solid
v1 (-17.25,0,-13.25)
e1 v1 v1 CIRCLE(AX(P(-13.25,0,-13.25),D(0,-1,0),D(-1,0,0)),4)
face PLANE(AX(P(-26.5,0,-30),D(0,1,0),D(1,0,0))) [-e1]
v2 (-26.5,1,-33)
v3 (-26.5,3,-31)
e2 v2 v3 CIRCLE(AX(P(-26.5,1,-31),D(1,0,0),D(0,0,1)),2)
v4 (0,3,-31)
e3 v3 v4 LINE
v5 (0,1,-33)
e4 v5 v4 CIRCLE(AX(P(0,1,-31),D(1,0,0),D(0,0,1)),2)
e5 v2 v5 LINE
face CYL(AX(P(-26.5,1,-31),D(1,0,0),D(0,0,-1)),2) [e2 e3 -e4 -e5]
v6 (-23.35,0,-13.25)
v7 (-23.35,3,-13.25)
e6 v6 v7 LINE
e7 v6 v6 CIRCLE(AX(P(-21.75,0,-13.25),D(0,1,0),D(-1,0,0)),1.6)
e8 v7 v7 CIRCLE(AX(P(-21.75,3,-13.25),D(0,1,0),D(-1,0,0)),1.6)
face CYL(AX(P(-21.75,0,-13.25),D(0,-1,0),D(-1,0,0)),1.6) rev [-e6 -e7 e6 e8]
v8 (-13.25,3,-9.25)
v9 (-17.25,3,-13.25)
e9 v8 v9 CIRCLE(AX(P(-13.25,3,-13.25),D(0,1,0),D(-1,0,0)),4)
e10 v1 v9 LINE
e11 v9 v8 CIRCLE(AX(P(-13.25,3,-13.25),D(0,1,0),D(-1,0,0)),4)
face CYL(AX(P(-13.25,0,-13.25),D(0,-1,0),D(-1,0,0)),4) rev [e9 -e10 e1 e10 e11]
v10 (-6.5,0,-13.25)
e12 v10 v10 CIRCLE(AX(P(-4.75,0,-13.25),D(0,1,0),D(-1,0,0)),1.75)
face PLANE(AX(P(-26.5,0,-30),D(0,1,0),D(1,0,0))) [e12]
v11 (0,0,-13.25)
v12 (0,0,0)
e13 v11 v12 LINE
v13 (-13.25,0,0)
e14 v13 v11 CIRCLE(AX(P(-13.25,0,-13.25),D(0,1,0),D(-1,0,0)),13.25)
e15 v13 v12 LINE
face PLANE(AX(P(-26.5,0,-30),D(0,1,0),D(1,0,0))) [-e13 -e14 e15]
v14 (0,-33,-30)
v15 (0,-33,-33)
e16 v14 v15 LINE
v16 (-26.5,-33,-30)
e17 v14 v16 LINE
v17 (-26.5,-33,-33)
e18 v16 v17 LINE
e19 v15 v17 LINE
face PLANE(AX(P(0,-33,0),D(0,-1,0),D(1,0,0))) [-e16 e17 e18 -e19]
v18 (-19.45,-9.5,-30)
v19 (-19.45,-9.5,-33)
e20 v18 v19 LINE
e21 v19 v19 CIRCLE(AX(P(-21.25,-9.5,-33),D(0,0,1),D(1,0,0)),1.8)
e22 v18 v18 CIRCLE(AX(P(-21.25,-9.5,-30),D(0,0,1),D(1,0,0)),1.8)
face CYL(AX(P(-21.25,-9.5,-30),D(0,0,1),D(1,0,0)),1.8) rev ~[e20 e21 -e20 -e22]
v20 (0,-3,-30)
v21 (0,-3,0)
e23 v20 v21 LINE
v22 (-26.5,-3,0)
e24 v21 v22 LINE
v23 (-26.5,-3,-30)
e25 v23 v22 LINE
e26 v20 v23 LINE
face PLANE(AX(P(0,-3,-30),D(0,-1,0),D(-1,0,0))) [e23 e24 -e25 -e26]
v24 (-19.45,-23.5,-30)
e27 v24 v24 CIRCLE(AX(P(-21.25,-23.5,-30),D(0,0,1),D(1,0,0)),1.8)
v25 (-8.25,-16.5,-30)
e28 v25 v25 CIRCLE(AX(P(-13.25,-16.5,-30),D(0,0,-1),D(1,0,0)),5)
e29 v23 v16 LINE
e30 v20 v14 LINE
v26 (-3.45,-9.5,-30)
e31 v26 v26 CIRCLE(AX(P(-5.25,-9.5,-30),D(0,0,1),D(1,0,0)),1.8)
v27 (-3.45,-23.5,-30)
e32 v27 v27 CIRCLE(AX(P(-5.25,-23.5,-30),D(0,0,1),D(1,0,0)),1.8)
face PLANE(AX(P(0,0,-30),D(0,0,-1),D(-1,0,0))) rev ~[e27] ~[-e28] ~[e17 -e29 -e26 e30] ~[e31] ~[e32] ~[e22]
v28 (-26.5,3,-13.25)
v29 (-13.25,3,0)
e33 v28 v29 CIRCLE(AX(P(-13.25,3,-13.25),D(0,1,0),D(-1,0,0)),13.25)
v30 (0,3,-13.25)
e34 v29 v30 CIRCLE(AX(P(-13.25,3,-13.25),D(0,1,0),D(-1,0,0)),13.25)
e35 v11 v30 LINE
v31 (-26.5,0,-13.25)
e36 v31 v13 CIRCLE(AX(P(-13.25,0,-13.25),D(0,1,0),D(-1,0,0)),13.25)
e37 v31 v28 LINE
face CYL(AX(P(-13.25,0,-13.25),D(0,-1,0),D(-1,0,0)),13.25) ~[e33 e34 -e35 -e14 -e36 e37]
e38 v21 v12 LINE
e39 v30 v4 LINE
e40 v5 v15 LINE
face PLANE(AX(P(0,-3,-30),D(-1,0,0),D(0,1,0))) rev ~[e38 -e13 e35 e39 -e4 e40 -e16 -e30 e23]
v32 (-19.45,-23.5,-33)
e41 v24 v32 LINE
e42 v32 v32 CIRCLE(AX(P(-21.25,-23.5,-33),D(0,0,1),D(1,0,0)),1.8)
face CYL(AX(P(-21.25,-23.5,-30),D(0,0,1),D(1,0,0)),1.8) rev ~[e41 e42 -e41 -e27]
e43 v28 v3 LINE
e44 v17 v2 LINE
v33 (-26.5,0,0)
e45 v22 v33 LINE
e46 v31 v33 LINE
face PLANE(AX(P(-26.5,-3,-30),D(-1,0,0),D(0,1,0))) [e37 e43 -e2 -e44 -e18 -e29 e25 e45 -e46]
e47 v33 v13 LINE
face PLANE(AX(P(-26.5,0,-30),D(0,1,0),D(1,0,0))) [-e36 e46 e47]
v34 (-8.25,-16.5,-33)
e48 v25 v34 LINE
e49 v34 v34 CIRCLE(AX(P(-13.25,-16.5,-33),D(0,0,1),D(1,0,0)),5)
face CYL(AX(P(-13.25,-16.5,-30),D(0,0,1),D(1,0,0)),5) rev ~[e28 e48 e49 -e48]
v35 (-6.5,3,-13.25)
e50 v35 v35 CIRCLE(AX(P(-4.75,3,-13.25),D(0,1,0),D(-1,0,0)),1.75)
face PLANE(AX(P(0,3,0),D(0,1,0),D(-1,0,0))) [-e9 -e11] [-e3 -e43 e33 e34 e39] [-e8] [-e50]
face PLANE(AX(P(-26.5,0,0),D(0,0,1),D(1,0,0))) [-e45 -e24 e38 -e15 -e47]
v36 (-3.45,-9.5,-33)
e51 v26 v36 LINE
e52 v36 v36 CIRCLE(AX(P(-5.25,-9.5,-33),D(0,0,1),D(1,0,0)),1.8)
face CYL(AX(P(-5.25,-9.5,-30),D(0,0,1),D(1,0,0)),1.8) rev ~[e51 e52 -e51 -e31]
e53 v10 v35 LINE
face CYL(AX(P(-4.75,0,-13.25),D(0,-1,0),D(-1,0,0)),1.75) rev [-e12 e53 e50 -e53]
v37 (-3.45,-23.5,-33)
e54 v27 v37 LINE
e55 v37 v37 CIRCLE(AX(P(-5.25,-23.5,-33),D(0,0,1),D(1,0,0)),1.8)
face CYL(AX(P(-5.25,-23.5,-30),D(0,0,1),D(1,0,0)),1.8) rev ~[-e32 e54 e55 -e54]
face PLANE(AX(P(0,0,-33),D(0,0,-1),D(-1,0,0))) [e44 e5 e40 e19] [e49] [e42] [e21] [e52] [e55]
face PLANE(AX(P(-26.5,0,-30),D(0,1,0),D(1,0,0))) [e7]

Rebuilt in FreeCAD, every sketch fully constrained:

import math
import FreeCAD as App
import Part
import Sketcher


def edges_at(feature, points):
    """Names of the edges that pass closest to the given points."""
    edges = feature.Shape.Edges
    near = lambda p: min(range(len(edges)), key=lambda i: edges[i].distToShape(Part.Vertex(*p))[0])
    return sorted({f"Edge{near(p) + 1}" for p in points})


def add_polygon(sketch, points):
    """Adds a closed chain of lines whose ends are joined by coincident constraints."""
    first, n = sketch.GeometryCount, len(points)
    for a, b in zip(points, points[1:] + points[:1]):
        sketch.addGeometry(Part.LineSegment(App.Vector(*a, 0), App.Vector(*b, 0)), False)
    for i in range(n):
        sketch.addConstraint(Sketcher.Constraint("Coincident", first + i, 2, first + (i + 1) % n, 1))

doc = App.newDocument("Part")
params = doc.addObject("Spreadsheet::Sheet", "Params")
for row, (alias, value) in enumerate([
    ("sketch1_diameter", "8 mm"),
    ("sketch1_diameter2", "3.2 mm"),
    ("sketch1_radius", "13.25 mm"),
    ("sketch1_diameter3", "3.5 mm"),
    ("pad1_length", "3 mm"),
    ("sketch2_height", "3 mm"),
    ("sketch2_width", "26.5 mm"),
    ("pad2_length", "33 mm"),
    ("fillet_radius", "2 mm"),
    ("sketch3_diameter", "10 mm"),
    ("sketch3_diameter2", "3.6 mm"),
    ("pocket1_length", "33 mm"),
    ("sketch4_height", "3 mm"),
    ("sketch4_width", "26.5 mm"),
    ("pad3_length", "30 mm"),
], start=1):
    params.set(f"A{row}", alias)
    params.set(f"B{row}", "=" + value)
    params.setAlias(f"B{row}", alias)

body = doc.addObject("PartDesign::Body", "Body")

# Sketch on XZ plane
sketch1 = doc.addObject("Sketcher::SketchObject", "Sketch")
body.addObject(sketch1)
sketch1.AttachmentSupport = (doc.XZ_Plane, [""])
sketch1.MapMode = "FlatFace"
sketch1.addGeometry(Part.ArcOfCircle(Part.Circle(App.Vector(-13.2, -13.2, 0), App.Vector(0, 0, 1), 13.2), math.radians(90), math.radians(180)), False)
sketch1.addGeometry(Part.ArcOfCircle(Part.Circle(App.Vector(-13.2, -13.2, 0), App.Vector(0, 0, 1), 13.2), math.radians(0), math.radians(90)), False)
sketch1.addGeometry(Part.LineSegment(App.Vector(0, -13.2, 0), App.Vector(0, -33, 0)), False)
sketch1.addGeometry(Part.LineSegment(App.Vector(0, -33, 0), App.Vector(-26.5, -33, 0)), False)
sketch1.addGeometry(Part.LineSegment(App.Vector(-26.5, -33, 0), App.Vector(-26.5, -13.2, 0)), False)
sketch1.addGeometry(Part.Circle(App.Vector(-4.8, -13.2, 0), App.Vector(0, 0, 1), 1.8), False)
sketch1.addGeometry(Part.Circle(App.Vector(-13.2, -13.2, 0), App.Vector(0, 0, 1), 4), False)
sketch1.addGeometry(Part.Circle(App.Vector(-21.8, -13.2, 0), App.Vector(0, 0, 1), 1.6), False)
sketch1.addConstraint(Sketcher.Constraint("Tangent", 0, 1, 1, 2))
sketch1.addConstraint(Sketcher.Constraint("Tangent", 1, 1, 2, 1))
sketch1.addConstraint(Sketcher.Constraint("Coincident", 2, 2, 3, 1))
sketch1.addConstraint(Sketcher.Constraint("Coincident", 3, 2, 4, 1))
sketch1.addConstraint(Sketcher.Constraint("Tangent", 4, 2, 0, 2))
sketch1.addConstraint(Sketcher.Constraint("Vertical", 2))
sketch1.addConstraint(Sketcher.Constraint("Horizontal", 3))
sketch1.addConstraint(Sketcher.Constraint("Vertical", 4))
sketch1.addConstraint(Sketcher.Constraint("Coincident", 6, 3, 0, 3))
sketch1.addConstraint(Sketcher.Constraint("Equal", 0, 1))
sketch1.addConstraint(Sketcher.Constraint("PointOnObject", 0, 1, -1))
sketch1.addConstraint(Sketcher.Constraint("PointOnObject", 1, 1, -2))
sketch1.addConstraint(Sketcher.Constraint("Horizontal", 1, 3, 5, 3))
sketch1.addConstraint(Sketcher.Constraint("Horizontal", 6, 3, 7, 3))
sketch1.addConstraint(Sketcher.Constraint("Vertical", 6, 3, 0, 1))
sketch1.addConstraint(Sketcher.Constraint("Diameter", 6, 8.0))
sketch1.addConstraint(Sketcher.Constraint("Diameter", 7, 3.2))
sketch1.addConstraint(Sketcher.Constraint("Radius", 0, 13.25))
sketch1.addConstraint(Sketcher.Constraint("DistanceY", 2, 2, -1, 1, 33.0))
sketch1.addConstraint(Sketcher.Constraint("Diameter", 5, 3.5))
sketch1.addConstraint(Sketcher.Constraint("DistanceX", 7, 3, 5, 3, 17.0))
sketch1.addConstraint(Sketcher.Constraint("DistanceX", 0, 3, 5, 3, 8.5))
sketch1.setExpression("Constraints[15]", "Params.sketch1_diameter")
sketch1.setExpression("Constraints[16]", "Params.sketch1_diameter2")
sketch1.setExpression("Constraints[17]", "Params.sketch1_radius")
sketch1.setExpression("Constraints[19]", "Params.sketch1_diameter3")
pad1 = doc.addObject("PartDesign::Pad", "Pad")
body.addObject(pad1)
pad1.Profile = sketch1
pad1.setExpression("Length", "Params.pad1_length")
pad1.Reversed = True

# Sketch on XZ plane
sketch2 = doc.addObject("Sketcher::SketchObject", "Sketch001")
body.addObject(sketch2)
sketch2.AttachmentSupport = (doc.XZ_Plane, [""])
sketch2.MapMode = "FlatFace"
add_polygon(sketch2, [(-26.5, -33), (0, -33), (0, -30), (-26.5, -30)])  # lines 0-3
sketch2.addConstraint(Sketcher.Constraint("Horizontal", 0))
sketch2.addConstraint(Sketcher.Constraint("Vertical", 1))
sketch2.addConstraint(Sketcher.Constraint("Horizontal", 2))
sketch2.addConstraint(Sketcher.Constraint("Vertical", 3))
sketch2.addConstraint(Sketcher.Constraint("PointOnObject", 0, 2, -2))
sketch2.addConstraint(Sketcher.Constraint("DistanceY", 1, 1, 1, 2, 3.0))
sketch2.addConstraint(Sketcher.Constraint("DistanceX", 0, 1, 0, 2, 26.5))
sketch2.addConstraint(Sketcher.Constraint("DistanceY", 0, 2, -1, 1, 33.0))
sketch2.setExpression("Constraints[9]", "Params.sketch2_height")
sketch2.setExpression("Constraints[10]", "Params.sketch2_width")
pad2 = doc.addObject("PartDesign::Pad", "Pad001")
body.addObject(pad2)
pad2.Profile = sketch2
pad2.setExpression("Length", "Params.pad2_length")
doc.recompute()

fillet = doc.addObject("PartDesign::Fillet", "Fillet")
body.addObject(fillet)
fillet.Base = (pad2, edges_at(pad2, [(-13.25, 3, -33)]))
fillet.setExpression("Radius", "Params.fillet_radius")

# Sketch on XY plane
sketch3 = doc.addObject("Sketcher::SketchObject", "Sketch002")
body.addObject(sketch3)
sketch3.AttachmentSupport = (doc.XY_Plane, [""])
sketch3.MapMode = "FlatFace"
sketch3.AttachmentOffset = App.Placement(App.Vector(0, 0, -30), App.Rotation())
sketch3.addGeometry(Part.Circle(App.Vector(-13.2, -16.5, 0), App.Vector(0, 0, 1), 5), False)
sketch3.addGeometry(Part.Circle(App.Vector(-21.2, -23.5, 0), App.Vector(0, 0, 1), 1.8), False)
sketch3.addGeometry(Part.Circle(App.Vector(-21.2, -9.5, 0), App.Vector(0, 0, 1), 1.8), False)
sketch3.addGeometry(Part.Circle(App.Vector(-5.2, -23.5, 0), App.Vector(0, 0, 1), 1.8), False)
sketch3.addGeometry(Part.Circle(App.Vector(-5.2, -9.5, 0), App.Vector(0, 0, 1), 1.8), False)
sketch3.addConstraint(Sketcher.Constraint("Equal", 1, 2))
sketch3.addConstraint(Sketcher.Constraint("Equal", 2, 3))
sketch3.addConstraint(Sketcher.Constraint("Equal", 3, 4))
sketch3.addConstraint(Sketcher.Constraint("Horizontal", 1, 3, 3, 3))
sketch3.addConstraint(Sketcher.Constraint("Horizontal", 2, 3, 4, 3))
sketch3.addConstraint(Sketcher.Constraint("Vertical", 1, 3, 2, 3))
sketch3.addConstraint(Sketcher.Constraint("Vertical", 3, 3, 4, 3))
sketch3.addConstraint(Sketcher.Constraint("Diameter", 0, 10.0))
sketch3.addConstraint(Sketcher.Constraint("Diameter", 1, 3.6))
sketch3.addConstraint(Sketcher.Constraint("DistanceX", 1, 3, 0, 3, 8.0))
sketch3.addConstraint(Sketcher.Constraint("DistanceY", 1, 3, 0, 3, 7.0))
sketch3.addConstraint(Sketcher.Constraint("DistanceY", 0, 3, 2, 3, 7.0))
sketch3.addConstraint(Sketcher.Constraint("DistanceX", 0, 3, 3, 3, 8.0))
sketch3.addConstraint(Sketcher.Constraint("DistanceY", 0, 3, -1, 1, 16.5))
sketch3.addConstraint(Sketcher.Constraint("DistanceX", 0, 3, -1, 1, 13.25))
sketch3.setExpression("Constraints[7]", "Params.sketch3_diameter")
sketch3.setExpression("Constraints[8]", "Params.sketch3_diameter2")
pocket1 = doc.addObject("PartDesign::Pocket", "Pocket")
body.addObject(pocket1)
pocket1.Profile = sketch3
pocket1.setExpression("Length", "Params.pocket1_length")

# Sketch on XY plane
sketch4 = doc.addObject("Sketcher::SketchObject", "Sketch003")
body.addObject(sketch4)
sketch4.AttachmentSupport = (doc.XY_Plane, [""])
sketch4.MapMode = "FlatFace"
sketch4.AttachmentOffset = App.Placement(App.Vector(0, 0, -30), App.Rotation())
add_polygon(sketch4, [(-26.5, 0), (-26.5, -3), (0, -3), (0, 0)])  # lines 0-3
sketch4.addConstraint(Sketcher.Constraint("Vertical", 0))
sketch4.addConstraint(Sketcher.Constraint("Horizontal", 1))
sketch4.addConstraint(Sketcher.Constraint("Vertical", 2))
sketch4.addConstraint(Sketcher.Constraint("Horizontal", 3))
sketch4.addConstraint(Sketcher.Constraint("Coincident", 2, 2, -1, 1))
sketch4.addConstraint(Sketcher.Constraint("DistanceY", 0, 2, 0, 1, 3.0))
sketch4.addConstraint(Sketcher.Constraint("DistanceX", 1, 1, 1, 2, 26.5))
sketch4.setExpression("Constraints[9]", "Params.sketch4_height")
sketch4.setExpression("Constraints[10]", "Params.sketch4_width")
pad3 = doc.addObject("PartDesign::Pad", "Pad002")
body.addObject(pad3)
pad3.Profile = sketch4
pad3.setExpression("Length", "Params.pad3_length")

doc.recompute()
